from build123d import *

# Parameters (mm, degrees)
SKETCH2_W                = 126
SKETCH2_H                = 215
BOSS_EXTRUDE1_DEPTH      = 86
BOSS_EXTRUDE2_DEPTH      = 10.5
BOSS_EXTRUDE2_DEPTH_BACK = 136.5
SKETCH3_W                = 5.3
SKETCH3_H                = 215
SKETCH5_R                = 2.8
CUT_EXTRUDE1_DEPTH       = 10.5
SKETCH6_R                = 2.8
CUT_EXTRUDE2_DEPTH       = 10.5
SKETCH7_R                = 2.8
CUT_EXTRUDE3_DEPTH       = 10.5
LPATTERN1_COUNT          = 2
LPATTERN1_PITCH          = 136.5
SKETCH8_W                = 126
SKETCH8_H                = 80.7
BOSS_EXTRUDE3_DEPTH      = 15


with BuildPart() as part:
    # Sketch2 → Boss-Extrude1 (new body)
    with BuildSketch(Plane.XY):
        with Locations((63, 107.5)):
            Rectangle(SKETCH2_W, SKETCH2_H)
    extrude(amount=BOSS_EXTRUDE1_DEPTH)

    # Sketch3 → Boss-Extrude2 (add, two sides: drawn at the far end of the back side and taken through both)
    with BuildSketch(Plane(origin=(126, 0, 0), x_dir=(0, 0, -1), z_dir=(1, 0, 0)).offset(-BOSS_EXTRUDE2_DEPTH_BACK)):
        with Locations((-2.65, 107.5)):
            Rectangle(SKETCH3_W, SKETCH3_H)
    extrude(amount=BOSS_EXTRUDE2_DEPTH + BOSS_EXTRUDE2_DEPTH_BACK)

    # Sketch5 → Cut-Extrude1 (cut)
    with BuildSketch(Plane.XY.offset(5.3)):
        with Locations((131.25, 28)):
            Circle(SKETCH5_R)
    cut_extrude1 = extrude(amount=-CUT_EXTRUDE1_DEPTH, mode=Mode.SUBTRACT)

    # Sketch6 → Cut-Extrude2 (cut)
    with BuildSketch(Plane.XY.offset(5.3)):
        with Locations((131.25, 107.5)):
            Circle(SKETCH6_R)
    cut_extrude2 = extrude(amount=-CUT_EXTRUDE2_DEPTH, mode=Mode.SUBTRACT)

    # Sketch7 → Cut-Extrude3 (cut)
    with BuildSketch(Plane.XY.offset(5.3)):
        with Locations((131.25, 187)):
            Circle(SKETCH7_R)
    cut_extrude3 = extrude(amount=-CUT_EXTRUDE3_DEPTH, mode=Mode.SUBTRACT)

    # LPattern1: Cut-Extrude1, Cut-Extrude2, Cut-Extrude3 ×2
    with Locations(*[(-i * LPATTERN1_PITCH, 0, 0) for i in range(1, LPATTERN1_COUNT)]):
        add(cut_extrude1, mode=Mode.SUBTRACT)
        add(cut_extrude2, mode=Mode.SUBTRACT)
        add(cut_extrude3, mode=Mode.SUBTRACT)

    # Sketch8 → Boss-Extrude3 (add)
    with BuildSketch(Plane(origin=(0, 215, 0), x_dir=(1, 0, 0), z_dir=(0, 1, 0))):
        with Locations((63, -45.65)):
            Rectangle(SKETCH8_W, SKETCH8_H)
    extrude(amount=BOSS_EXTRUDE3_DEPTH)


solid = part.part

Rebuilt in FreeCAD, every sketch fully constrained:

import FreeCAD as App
import Part
import Sketcher
from FreeCAD import Vector


def add_polygon(sketch, points):
    """Adds a closed chain of lines whose ends are joined by coincident constraints."""
    first, n = sketch.GeometryCount, len(points)
    for a, b in zip(points, points[1:] + points[:1]):
        sketch.addGeometry(Part.LineSegment(App.Vector(*a, 0), App.Vector(*b, 0)), False)
    for i in range(n):
        sketch.addConstraint(Sketcher.Constraint("Coincident", first + i, 2, first + (i + 1) % n, 1))

doc = App.newDocument("Part")
params = doc.addObject("Spreadsheet::Sheet", "Params")
for row, (alias, value) in enumerate([
    ("sketch1_width", "126 mm"),
    ("sketch1_height", "215 mm"),
    ("pad1_length", "86 mm"),
    ("sketch2_width", "215 mm"),
    ("sketch2_height", "5.3 mm"),
    ("pad2_length", "10.5 mm"),
    ("pad2_length2", "136.5 mm"),
    ("sketch3_diameter", "5.6 mm"),
    ("pocket1_length", "10.5 mm"),
    ("sketch4_diameter", "5.6 mm"),
    ("pocket2_length", "10.5 mm"),
    ("sketch5_diameter", "5.6 mm"),
    ("pocket3_length", "10.5 mm"),
    ("linearpattern_pitch", "136.5 mm"),
    ("sketch6_width", "126 mm"),
    ("sketch6_height", "80.7 mm"),
    ("pad3_length", "15 mm"),
], start=1):
    params.set(f"A{row}", alias)
    params.set(f"B{row}", "=" + value)
    params.setAlias(f"B{row}", alias)

body = doc.addObject("PartDesign::Body", "Body")

sketch1 = doc.addObject("Sketcher::SketchObject", "Sketch")
body.addObject(sketch1)
sketch1.AttachmentSupport = (doc.XY_Plane, [""])
sketch1.MapMode = "FlatFace"
add_polygon(sketch1, [(0, 215), (0, 0), (126, 0), (126, 215)])
sketch1.addConstraint([
    Sketcher.Constraint("Vertical", 0),
    Sketcher.Constraint("Horizontal", 1),
    Sketcher.Constraint("Vertical", 2),
    Sketcher.Constraint("Horizontal", 3),
    Sketcher.Constraint("Coincident", 0, 2, -1, 1),
    Sketcher.Constraint("DistanceX", 1, 1, 1, 2, 126.0),
    Sketcher.Constraint("DistanceY", 0, 2, 0, 1, 215.0),
])
sketch1.setExpression("Constraints[9]", "Params.sketch1_width")
sketch1.setExpression("Constraints[10]", "Params.sketch1_height")
pad1 = doc.addObject("PartDesign::Pad", "Pad")
body.addObject(pad1)
pad1.Profile = sketch1
pad1.setExpression("Length", "Params.pad1_length")

sketch2 = doc.addObject("Sketcher::SketchObject", "Sketch001")
body.addObject(sketch2)
sketch2.AttachmentSupport = (doc.YZ_Plane, [""])
sketch2.MapMode = "FlatFace"
sketch2.AttachmentOffset = App.Placement(Vector(0, 0, 126), App.Rotation())
add_polygon(sketch2, [(215, 5.3), (0, 5.3), (0, 0), (215, 0)])
sketch2.addConstraint([
    Sketcher.Constraint("Horizontal", 0),
    Sketcher.Constraint("Vertical", 1),
    Sketcher.Constraint("Horizontal", 2),
    Sketcher.Constraint("Vertical", 3),
    Sketcher.Constraint("Coincident", 1, 2, -1, 1),
    Sketcher.Constraint("DistanceX", 0, 2, 0, 1, 215.0),
    Sketcher.Constraint("DistanceY", 1, 2, 1, 1, 5.3),
])
sketch2.setExpression("Constraints[9]", "Params.sketch2_width")
sketch2.setExpression("Constraints[10]", "Params.sketch2_height")
pad2 = doc.addObject("PartDesign::Pad", "Pad001")
body.addObject(pad2)
pad2.Profile = sketch2
pad2.Type = "TwoLengths"
pad2.setExpression("Length", "Params.pad2_length")
pad2.setExpression("Length2", "Params.pad2_length2")

sketch3 = doc.addObject("Sketcher::SketchObject", "Sketch002")
body.addObject(sketch3)
sketch3.AttachmentSupport = (doc.XY_Plane, [""])
sketch3.MapMode = "FlatFace"
sketch3.AttachmentOffset = App.Placement(Vector(0, 0, 5.3), App.Rotation())
sketch3.addGeometry(Part.Circle(Vector(131.25, 28, 0), Vector(0, 0, 1), 2.8), False)
sketch3.addConstraint([
    Sketcher.Constraint("Diameter", 0, 5.6),
    Sketcher.Constraint("DistanceY", -1, 1, 0, 3, 28.0),
    Sketcher.Constraint("DistanceX", -1, 1, 0, 3, 131.25),
])
sketch3.setExpression("Constraints[0]", "Params.sketch3_diameter")
pocket1 = doc.addObject("PartDesign::Pocket", "Pocket")
body.addObject(pocket1)
pocket1.Profile = sketch3
pocket1.setExpression("Length", "Params.pocket1_length")

sketch4 = doc.addObject("Sketcher::SketchObject", "Sketch003")
body.addObject(sketch4)
sketch4.AttachmentSupport = (doc.XY_Plane, [""])
sketch4.MapMode = "FlatFace"
sketch4.AttachmentOffset = App.Placement(Vector(0, 0, 5.3), App.Rotation())
sketch4.addGeometry(Part.Circle(Vector(131.25, 107.5, 0), Vector(0, 0, 1), 2.8), False)
sketch4.addConstraint([
    Sketcher.Constraint("Diameter", 0, 5.6),
    Sketcher.Constraint("DistanceY", -1, 1, 0, 3, 107.5),
    Sketcher.Constraint("DistanceX", -1, 1, 0, 3, 131.25),
])
sketch4.setExpression("Constraints[0]", "Params.sketch4_diameter")
pocket2 = doc.addObject("PartDesign::Pocket", "Pocket001")
body.addObject(pocket2)
pocket2.Profile = sketch4
pocket2.setExpression("Length", "Params.pocket2_length")

sketch5 = doc.addObject("Sketcher::SketchObject", "Sketch004")
body.addObject(sketch5)
sketch5.AttachmentSupport = (doc.XY_Plane, [""])
sketch5.MapMode = "FlatFace"
sketch5.AttachmentOffset = App.Placement(Vector(0, 0, 5.3), App.Rotation())
sketch5.addGeometry(Part.Circle(Vector(131.25, 187, 0), Vector(0, 0, 1), 2.8), False)
sketch5.addConstraint([
    Sketcher.Constraint("Diameter", 0, 5.6),
    Sketcher.Constraint("DistanceY", -1, 1, 0, 3, 187.0),
    Sketcher.Constraint("DistanceX", -1, 1, 0, 3, 131.25),
])
sketch5.setExpression("Constraints[0]", "Params.sketch5_diameter")
pocket3 = doc.addObject("PartDesign::Pocket", "Pocket002")
body.addObject(pocket3)
pocket3.Profile = sketch5
pocket3.setExpression("Length", "Params.pocket3_length")
doc.recompute()

linearpattern = doc.addObject("PartDesign::LinearPattern", "LinearPattern")
body.addObject(linearpattern)
linearpattern.Originals = [pocket1, pocket2, pocket3]
linearpattern.Direction = (doc.X_Axis, [""])
linearpattern.Mode = "offset"
linearpattern.setExpression("Offset", "Params.linearpattern_pitch")
linearpattern.Occurrences = 2
linearpattern.Reversed = True
body.Tip = linearpattern

sketch6 = doc.addObject("Sketcher::SketchObject", "Sketch005")
body.addObject(sketch6)
sketch6.AttachmentSupport = (doc.XZ_Plane, [""])
sketch6.MapMode = "FlatFace"
sketch6.AttachmentOffset = App.Placement(Vector(0, 0, -215), App.Rotation())
add_polygon(sketch6, [(0, 5.3), (0, 86), (126, 86), (126, 5.3)])
sketch6.addConstraint([
    Sketcher.Constraint("Vertical", 0),
    Sketcher.Constraint("Horizontal", 1),
    Sketcher.Constraint("Vertical", 2),
    Sketcher.Constraint("Horizontal", 3),
    Sketcher.Constraint("PointOnObject", 0, 2, -2),
    Sketcher.Constraint("DistanceX", 1, 1, 1, 2, 126.0),
    Sketcher.Constraint("DistanceY", 0, 1, 0, 2, 80.7),
    Sketcher.Constraint("DistanceY", -1, 1, 0, 2, 86.0),
])
sketch6.setExpression("Constraints[9]", "Params.sketch6_width")
sketch6.setExpression("Constraints[10]", "Params.sketch6_height")
pad3 = doc.addObject("PartDesign::Pad", "Pad002")
body.addObject(pad3)
pad3.Profile = sketch6
pad3.setExpression("Length", "Params.pad3_length")
pad3.Reversed = True

doc.recompute()
